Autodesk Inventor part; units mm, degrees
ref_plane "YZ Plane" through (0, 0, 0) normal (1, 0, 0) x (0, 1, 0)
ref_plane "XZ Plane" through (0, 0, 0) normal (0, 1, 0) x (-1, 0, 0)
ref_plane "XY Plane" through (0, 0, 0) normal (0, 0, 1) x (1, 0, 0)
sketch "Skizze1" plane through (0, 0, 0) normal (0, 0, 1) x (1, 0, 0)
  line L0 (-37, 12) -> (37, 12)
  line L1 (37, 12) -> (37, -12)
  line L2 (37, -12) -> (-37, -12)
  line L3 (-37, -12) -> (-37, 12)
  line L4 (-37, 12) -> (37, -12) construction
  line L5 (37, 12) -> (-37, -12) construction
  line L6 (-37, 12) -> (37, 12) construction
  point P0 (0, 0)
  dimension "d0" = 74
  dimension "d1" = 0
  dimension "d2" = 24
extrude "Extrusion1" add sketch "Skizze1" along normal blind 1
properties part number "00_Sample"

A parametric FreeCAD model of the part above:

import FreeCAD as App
import Part
import Sketcher


def add_polygon(sketch, points):
    """Adds a closed chain of lines whose ends are joined by coincident constraints."""
    first, n = sketch.GeometryCount, len(points)
    for a, b in zip(points, points[1:] + points[:1]):
        sketch.addGeometry(Part.LineSegment(App.Vector(*a, 0), App.Vector(*b, 0)), False)
    for i in range(n):
        sketch.addConstraint(Sketcher.Constraint("Coincident", first + i, 2, first + (i + 1) % n, 1))

doc = App.newDocument("Part")
params = doc.addObject("Spreadsheet::Sheet", "Params")
for row, (alias, value) in enumerate([
    ("sketch1_width", "74 mm"),
    ("sketch1_height", "24 mm"),
    ("pad1_length", "1 mm"),
], start=1):
    params.set(f"A{row}", alias)
    params.set(f"B{row}", "=" + value)
    params.setAlias(f"B{row}", alias)

body = doc.addObject("PartDesign::Body", "Body")

sketch1 = body.newObject("Sketcher::SketchObject", "Sketch")
sketch1.AttachmentSupport = (doc.getObject("XY_Plane"), [""])
sketch1.MapMode = "FlatFace"
add_polygon(sketch1, [(37, 12), (-37, 12), (-37, -12), (37, -12)])
sketch1.addConstraint([
    Sketcher.Constraint("Horizontal", 0),
    Sketcher.Constraint("Vertical", 1),
    Sketcher.Constraint("Horizontal", 2),
    Sketcher.Constraint("Vertical", 3),
    Sketcher.Constraint("Symmetric", 0, 2, 2, 2, -1, 1),
    Sketcher.Constraint("DistanceX", 0, 2, 0, 1, 74.0),
    Sketcher.Constraint("DistanceY", 1, 2, 1, 1, 24.0),
])
sketch1.setExpression("Constraints[9]", "Params.sketch1_width")
sketch1.setExpression("Constraints[10]", "Params.sketch1_height")
pad1 = body.newObject("PartDesign::Pad", "Pad")
pad1.Profile = sketch1
pad1.setExpression("Length", "Params.pad1_length")

doc.recompute()
